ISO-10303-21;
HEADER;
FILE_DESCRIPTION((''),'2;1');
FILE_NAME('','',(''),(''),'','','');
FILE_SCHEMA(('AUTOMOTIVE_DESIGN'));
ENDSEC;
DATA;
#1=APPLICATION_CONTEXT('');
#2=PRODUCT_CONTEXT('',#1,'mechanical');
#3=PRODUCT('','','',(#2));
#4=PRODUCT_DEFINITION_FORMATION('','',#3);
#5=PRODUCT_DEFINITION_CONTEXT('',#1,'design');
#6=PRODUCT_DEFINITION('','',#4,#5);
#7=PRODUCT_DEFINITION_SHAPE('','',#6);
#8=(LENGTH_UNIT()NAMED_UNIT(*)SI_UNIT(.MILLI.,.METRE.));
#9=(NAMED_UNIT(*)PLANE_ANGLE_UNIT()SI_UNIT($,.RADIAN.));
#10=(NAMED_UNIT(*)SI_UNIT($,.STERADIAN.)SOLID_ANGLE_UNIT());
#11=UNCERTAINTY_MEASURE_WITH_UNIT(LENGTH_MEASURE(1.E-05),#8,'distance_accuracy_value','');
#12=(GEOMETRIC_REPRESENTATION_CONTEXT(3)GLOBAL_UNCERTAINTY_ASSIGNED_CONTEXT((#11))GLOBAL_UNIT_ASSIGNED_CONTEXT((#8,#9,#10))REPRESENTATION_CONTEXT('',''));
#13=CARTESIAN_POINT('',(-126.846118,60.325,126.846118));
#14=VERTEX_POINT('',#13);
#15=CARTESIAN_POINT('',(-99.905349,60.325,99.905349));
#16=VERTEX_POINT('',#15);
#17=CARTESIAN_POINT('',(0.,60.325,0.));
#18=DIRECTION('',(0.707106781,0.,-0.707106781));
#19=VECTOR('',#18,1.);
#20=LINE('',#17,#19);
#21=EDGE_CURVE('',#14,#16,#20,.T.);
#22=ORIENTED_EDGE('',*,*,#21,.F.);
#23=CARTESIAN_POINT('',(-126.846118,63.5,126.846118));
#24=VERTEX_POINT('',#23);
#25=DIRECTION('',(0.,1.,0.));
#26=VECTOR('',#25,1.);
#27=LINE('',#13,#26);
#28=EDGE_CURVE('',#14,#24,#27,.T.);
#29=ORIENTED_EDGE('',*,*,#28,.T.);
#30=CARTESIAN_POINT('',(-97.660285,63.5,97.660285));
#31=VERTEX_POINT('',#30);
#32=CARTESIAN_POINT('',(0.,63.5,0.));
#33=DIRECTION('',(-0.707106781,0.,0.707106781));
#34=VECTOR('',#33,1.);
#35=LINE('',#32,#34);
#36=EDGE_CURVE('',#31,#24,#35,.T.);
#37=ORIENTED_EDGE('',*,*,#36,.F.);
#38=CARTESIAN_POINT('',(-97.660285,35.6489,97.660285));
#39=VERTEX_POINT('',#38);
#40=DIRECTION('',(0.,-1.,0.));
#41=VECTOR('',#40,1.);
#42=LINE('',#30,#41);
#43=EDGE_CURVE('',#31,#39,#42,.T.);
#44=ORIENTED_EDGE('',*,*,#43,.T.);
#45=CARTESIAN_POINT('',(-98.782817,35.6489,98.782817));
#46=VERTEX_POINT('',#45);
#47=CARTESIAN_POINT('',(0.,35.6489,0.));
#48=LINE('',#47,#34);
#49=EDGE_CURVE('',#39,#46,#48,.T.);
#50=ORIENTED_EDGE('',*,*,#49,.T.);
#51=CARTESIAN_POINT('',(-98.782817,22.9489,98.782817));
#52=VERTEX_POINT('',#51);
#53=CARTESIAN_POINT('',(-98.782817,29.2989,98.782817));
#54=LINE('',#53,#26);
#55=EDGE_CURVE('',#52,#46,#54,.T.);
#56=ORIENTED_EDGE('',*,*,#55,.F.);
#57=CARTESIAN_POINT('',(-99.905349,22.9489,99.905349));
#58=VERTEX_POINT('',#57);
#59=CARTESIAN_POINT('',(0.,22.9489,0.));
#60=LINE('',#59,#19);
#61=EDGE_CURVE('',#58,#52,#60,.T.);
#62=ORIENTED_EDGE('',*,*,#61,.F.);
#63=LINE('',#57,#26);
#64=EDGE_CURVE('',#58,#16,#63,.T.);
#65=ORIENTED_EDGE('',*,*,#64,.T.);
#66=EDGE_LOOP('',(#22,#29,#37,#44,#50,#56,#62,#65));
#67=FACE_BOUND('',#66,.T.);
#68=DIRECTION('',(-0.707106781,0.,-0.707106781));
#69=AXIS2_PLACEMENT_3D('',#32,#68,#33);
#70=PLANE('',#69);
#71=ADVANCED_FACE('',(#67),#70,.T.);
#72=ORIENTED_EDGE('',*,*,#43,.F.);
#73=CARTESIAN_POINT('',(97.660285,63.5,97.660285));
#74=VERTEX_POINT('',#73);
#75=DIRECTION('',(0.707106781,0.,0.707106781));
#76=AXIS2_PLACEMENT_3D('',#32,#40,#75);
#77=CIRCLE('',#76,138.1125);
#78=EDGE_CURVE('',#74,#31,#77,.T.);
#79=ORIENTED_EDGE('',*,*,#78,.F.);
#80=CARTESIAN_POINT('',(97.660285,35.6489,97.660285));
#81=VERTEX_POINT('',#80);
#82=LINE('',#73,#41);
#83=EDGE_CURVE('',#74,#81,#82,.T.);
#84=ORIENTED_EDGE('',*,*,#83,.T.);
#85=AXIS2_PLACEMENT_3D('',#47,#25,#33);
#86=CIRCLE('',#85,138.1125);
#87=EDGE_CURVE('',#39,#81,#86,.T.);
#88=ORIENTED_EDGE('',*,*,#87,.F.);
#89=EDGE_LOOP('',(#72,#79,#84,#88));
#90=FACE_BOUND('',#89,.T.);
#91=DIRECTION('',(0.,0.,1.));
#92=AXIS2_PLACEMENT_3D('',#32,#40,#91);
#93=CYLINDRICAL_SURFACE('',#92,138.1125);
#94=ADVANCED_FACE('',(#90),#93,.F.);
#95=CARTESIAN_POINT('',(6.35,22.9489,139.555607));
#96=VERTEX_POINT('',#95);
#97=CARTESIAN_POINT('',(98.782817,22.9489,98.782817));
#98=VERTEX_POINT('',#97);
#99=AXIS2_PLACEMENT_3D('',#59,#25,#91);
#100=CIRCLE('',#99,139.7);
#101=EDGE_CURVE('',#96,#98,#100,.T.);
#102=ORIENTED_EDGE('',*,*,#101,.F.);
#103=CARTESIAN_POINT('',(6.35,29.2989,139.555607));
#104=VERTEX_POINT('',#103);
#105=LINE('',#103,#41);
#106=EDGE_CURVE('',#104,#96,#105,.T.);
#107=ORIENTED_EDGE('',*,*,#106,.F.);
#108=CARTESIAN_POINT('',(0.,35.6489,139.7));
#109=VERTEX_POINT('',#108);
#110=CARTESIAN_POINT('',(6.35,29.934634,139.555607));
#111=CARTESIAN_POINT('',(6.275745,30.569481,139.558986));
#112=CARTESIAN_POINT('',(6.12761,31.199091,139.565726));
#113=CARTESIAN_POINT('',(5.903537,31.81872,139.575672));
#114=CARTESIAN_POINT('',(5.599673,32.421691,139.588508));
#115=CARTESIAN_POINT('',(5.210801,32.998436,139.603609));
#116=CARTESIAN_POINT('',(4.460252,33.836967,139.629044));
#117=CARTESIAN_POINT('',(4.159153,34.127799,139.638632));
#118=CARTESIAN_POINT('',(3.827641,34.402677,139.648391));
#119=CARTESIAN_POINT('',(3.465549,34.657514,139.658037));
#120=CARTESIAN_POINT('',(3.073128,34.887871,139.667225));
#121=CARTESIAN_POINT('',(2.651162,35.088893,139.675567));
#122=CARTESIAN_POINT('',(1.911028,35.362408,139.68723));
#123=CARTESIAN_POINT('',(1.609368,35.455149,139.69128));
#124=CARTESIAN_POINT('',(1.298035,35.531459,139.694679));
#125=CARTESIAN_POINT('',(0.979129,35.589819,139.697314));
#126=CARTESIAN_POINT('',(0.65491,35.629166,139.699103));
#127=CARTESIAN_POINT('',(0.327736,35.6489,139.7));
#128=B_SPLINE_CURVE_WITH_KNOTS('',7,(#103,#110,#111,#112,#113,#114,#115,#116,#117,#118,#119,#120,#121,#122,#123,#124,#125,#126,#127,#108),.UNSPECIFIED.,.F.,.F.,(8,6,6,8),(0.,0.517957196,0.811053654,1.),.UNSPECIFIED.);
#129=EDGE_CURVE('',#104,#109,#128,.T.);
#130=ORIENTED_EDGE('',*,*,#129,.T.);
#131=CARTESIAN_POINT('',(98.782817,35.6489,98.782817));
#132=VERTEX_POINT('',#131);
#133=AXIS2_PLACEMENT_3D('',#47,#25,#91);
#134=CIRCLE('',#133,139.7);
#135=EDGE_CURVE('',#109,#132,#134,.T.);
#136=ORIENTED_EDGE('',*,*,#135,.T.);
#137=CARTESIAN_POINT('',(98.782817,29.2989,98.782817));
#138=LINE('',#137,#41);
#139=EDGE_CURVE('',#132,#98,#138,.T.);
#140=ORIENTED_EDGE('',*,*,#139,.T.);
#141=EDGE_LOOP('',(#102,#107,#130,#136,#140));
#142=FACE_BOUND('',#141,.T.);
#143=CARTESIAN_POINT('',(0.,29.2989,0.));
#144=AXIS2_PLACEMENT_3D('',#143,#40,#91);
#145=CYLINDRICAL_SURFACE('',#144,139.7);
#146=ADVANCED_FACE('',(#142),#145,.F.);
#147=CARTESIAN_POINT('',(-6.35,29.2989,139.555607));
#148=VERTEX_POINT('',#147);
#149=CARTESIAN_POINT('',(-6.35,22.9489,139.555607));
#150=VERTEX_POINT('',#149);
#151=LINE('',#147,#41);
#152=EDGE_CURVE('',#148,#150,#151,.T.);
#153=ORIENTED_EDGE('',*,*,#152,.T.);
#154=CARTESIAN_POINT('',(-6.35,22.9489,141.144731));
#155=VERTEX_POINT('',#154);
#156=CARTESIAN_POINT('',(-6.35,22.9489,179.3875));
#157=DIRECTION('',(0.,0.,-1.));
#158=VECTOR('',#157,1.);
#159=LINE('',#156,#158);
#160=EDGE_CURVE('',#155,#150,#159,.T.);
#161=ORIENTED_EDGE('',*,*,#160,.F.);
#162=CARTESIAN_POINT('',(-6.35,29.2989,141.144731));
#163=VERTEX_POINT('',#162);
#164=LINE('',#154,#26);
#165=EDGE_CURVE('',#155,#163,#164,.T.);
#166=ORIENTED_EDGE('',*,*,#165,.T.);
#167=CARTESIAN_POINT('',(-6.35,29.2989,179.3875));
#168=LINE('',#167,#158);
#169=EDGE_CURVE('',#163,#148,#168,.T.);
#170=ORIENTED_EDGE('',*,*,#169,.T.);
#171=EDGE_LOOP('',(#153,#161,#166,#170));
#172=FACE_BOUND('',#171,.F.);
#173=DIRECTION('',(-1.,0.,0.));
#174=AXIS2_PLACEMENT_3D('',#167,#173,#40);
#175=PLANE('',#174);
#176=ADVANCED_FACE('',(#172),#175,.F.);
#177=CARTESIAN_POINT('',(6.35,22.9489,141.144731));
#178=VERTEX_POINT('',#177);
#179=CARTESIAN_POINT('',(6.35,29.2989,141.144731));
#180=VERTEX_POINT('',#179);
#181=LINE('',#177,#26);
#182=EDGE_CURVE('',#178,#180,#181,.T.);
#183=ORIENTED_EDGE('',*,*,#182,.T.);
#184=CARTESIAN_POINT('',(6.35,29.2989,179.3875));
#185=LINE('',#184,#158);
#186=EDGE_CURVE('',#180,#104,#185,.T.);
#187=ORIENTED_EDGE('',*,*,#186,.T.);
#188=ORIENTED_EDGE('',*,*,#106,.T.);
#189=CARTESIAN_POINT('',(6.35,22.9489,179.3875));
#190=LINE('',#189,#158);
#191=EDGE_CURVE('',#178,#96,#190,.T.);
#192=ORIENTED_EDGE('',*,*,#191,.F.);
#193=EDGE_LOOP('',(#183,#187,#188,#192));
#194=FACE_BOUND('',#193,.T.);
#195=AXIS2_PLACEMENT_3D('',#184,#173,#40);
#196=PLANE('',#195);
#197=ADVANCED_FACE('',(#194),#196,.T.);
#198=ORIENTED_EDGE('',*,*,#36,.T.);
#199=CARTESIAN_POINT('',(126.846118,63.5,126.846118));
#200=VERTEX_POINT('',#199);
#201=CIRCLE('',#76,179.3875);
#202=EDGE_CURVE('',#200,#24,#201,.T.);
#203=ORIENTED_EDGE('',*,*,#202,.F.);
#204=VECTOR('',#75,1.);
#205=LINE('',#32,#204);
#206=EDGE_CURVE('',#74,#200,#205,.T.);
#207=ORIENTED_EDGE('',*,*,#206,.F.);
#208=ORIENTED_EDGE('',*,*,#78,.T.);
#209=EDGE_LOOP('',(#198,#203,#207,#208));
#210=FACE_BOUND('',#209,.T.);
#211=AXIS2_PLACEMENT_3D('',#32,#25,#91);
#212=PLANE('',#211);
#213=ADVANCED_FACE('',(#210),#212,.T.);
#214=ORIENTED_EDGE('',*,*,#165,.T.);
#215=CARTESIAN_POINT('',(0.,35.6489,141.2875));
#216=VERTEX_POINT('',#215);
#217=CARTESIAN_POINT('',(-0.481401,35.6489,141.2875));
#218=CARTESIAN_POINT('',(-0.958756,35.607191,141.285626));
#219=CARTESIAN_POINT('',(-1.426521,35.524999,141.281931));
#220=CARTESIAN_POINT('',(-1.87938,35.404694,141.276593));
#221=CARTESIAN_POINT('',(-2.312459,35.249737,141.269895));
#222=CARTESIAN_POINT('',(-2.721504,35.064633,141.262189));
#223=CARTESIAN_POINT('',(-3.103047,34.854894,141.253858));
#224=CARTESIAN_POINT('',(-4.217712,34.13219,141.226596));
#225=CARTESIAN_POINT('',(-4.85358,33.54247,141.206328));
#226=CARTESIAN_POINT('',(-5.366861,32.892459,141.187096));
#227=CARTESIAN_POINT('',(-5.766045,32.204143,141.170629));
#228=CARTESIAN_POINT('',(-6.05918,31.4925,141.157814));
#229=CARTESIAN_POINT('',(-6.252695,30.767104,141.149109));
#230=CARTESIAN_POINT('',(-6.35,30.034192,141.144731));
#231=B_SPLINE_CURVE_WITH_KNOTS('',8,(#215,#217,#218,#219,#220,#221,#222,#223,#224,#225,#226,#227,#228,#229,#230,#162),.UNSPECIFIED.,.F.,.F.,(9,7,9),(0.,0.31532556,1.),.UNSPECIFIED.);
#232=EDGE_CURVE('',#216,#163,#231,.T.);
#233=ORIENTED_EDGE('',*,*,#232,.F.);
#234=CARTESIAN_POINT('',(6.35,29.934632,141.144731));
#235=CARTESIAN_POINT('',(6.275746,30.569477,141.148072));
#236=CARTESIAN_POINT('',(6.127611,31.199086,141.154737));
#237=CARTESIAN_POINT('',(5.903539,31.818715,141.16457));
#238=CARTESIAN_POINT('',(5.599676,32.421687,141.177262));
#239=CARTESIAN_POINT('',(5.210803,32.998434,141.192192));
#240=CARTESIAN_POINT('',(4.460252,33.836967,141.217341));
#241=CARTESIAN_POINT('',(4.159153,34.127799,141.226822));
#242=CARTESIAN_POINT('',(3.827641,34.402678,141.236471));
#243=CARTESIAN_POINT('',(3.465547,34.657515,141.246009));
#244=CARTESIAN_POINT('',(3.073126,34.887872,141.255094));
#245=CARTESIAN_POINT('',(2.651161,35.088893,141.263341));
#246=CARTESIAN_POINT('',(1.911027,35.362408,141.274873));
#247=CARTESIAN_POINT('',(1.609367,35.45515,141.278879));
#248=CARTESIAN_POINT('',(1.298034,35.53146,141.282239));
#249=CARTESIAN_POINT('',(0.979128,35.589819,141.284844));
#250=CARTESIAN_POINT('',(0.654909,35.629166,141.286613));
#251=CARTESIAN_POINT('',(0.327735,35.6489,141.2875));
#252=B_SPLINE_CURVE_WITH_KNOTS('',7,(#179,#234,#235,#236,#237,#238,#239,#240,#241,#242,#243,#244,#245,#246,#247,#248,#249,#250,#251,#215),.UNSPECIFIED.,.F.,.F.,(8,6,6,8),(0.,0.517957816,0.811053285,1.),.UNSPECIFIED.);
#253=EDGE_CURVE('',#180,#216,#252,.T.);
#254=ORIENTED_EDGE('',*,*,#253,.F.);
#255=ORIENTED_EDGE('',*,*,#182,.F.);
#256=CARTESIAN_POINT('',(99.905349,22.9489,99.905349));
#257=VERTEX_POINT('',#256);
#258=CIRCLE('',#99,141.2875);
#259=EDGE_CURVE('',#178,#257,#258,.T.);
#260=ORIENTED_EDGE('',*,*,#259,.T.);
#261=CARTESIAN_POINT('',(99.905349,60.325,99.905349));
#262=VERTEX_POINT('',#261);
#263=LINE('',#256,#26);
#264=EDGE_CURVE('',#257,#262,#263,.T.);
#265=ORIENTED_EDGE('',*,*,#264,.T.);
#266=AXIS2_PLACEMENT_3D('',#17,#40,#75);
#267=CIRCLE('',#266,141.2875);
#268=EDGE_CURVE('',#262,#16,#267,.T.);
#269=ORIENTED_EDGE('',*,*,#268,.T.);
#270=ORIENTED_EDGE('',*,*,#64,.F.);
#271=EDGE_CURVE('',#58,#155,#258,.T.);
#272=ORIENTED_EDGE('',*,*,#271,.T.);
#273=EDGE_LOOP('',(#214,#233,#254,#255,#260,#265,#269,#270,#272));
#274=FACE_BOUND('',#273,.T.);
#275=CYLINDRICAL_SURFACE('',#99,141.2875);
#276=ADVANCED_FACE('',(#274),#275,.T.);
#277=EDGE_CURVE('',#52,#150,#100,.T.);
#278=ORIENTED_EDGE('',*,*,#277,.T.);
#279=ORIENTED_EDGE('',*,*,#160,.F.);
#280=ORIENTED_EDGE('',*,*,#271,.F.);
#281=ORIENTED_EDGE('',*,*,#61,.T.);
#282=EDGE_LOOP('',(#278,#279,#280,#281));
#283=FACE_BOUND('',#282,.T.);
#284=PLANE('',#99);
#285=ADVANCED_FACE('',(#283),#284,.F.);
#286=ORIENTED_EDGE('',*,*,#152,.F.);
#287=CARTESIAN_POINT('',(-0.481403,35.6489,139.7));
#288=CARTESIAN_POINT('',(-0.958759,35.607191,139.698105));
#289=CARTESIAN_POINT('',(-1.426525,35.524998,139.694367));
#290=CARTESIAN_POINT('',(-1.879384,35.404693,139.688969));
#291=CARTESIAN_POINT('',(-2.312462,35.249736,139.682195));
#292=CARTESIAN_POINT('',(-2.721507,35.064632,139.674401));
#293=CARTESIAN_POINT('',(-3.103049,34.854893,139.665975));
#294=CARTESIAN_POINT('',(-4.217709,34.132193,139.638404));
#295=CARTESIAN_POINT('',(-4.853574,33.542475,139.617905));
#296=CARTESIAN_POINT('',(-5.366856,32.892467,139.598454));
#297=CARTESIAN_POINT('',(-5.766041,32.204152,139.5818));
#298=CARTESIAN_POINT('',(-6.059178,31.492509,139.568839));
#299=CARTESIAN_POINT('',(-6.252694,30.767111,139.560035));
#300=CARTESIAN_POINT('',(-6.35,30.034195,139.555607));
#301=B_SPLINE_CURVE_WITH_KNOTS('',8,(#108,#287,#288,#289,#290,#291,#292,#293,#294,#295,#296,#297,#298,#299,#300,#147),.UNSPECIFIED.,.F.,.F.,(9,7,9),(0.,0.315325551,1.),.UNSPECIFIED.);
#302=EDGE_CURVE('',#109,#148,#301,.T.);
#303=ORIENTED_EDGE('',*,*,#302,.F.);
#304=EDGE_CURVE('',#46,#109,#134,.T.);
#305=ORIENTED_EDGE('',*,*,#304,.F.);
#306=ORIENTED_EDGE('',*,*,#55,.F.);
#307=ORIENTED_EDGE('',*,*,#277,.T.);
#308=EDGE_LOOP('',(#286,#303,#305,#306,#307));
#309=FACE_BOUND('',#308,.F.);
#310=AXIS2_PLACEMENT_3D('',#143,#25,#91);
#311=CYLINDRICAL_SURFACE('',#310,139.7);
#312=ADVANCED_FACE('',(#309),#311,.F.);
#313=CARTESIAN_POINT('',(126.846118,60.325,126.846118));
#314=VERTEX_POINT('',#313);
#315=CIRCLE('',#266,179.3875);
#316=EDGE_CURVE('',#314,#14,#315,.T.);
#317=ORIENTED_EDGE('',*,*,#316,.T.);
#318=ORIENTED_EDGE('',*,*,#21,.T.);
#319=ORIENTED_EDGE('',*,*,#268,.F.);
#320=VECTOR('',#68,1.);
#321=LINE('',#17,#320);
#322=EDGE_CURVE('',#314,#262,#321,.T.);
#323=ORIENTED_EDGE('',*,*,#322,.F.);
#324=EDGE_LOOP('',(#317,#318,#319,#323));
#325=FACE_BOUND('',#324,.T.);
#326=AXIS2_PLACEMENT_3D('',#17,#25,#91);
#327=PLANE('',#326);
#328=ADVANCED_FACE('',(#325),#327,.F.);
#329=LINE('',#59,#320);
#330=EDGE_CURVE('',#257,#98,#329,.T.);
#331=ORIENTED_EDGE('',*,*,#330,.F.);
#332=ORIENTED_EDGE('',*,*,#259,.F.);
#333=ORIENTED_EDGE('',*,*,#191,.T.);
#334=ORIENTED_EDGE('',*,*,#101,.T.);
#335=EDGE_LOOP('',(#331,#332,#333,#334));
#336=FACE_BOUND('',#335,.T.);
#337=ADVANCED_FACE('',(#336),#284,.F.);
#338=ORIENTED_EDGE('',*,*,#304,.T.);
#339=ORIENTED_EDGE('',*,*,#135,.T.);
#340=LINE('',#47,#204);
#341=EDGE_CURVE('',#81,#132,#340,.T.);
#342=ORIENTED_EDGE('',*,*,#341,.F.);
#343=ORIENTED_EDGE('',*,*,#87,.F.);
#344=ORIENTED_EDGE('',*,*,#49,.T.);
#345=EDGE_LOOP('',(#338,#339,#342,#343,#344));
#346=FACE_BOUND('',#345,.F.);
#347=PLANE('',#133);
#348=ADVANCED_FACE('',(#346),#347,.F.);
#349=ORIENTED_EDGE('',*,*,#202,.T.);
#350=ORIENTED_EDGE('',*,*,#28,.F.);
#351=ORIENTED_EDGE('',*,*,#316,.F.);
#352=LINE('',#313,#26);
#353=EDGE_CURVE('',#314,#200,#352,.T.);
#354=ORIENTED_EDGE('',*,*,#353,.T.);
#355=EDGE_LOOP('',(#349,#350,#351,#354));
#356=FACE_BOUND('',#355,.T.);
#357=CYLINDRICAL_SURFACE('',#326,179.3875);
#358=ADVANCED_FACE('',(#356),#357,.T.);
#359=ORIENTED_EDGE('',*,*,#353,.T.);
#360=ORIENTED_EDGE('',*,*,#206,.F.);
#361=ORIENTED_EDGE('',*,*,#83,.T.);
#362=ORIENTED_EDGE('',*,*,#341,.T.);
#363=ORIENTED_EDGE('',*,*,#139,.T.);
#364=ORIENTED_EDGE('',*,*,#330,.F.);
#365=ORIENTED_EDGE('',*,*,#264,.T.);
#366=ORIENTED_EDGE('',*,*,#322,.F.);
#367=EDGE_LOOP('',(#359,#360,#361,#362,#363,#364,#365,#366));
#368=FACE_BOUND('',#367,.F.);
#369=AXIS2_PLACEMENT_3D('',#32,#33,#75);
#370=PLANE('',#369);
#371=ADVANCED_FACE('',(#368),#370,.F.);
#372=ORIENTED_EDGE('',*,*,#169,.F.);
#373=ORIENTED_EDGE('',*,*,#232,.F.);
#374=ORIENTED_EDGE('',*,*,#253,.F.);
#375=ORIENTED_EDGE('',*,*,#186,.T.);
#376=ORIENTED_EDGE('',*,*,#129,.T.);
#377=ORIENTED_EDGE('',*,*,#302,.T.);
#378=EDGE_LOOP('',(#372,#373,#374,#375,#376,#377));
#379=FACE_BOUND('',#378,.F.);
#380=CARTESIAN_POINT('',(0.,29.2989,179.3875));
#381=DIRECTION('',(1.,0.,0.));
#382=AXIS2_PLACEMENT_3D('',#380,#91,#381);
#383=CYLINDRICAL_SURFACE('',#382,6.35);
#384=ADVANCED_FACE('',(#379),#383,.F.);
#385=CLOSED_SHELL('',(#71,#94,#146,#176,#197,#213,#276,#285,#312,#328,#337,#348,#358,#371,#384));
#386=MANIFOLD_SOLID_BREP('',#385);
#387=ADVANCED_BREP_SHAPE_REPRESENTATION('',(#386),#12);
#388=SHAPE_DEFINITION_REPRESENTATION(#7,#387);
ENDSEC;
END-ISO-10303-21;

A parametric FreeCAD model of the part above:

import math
import FreeCAD as App
import Part
import Sketcher
from FreeCAD import Vector
Q = App.Units.Quantity

doc = App.newDocument("Part")
body = doc.addObject("PartDesign::Body", "Body")

# Sketch on YZ plane
sketch1 = doc.addObject("Sketcher::SketchObject", "Sketch")
body.addObject(sketch1)
sketch1.AttachmentSupport = (doc.YZ_Plane, [""])
sketch1.MapMode = "FlatFace"
sketch1.addGeometry(Part.LineSegment(Vector(60.3, 141.3, 0), Vector(22.9, 141.3, 0)), False)
sketch1.addGeometry(Part.LineSegment(Vector(22.9, 141.3, 0), Vector(22.9, 139.7, 0)), False)
sketch1.addGeometry(Part.LineSegment(Vector(22.9, 139.7, 0), Vector(35.6, 139.7, 0)), False)
sketch1.addGeometry(Part.LineSegment(Vector(35.6, 139.7, 0), Vector(35.6, 138.1, 0)), False)
sketch1.addGeometry(Part.LineSegment(Vector(35.6, 138.1, 0), Vector(63.5, 138.1, 0)), False)
sketch1.addGeometry(Part.LineSegment(Vector(63.5, 138.1, 0), Vector(63.5, 179.4, 0)), False)
sketch1.addGeometry(Part.LineSegment(Vector(63.5, 179.4, 0), Vector(60.3, 179.4, 0)), False)
sketch1.addGeometry(Part.LineSegment(Vector(60.3, 179.4, 0), Vector(60.3, 141.3, 0)), False)
sketch1.addConstraint(Sketcher.Constraint("Coincident", 0, 2, 1, 1))
sketch1.addConstraint(Sketcher.Constraint("Coincident", 1, 2, 2, 1))
sketch1.addConstraint(Sketcher.Constraint("Coincident", 2, 2, 3, 1))
sketch1.addConstraint(Sketcher.Constraint("Coincident", 3, 2, 4, 1))
sketch1.addConstraint(Sketcher.Constraint("Coincident", 4, 2, 5, 1))
sketch1.addConstraint(Sketcher.Constraint("Coincident", 5, 2, 6, 1))
sketch1.addConstraint(Sketcher.Constraint("Coincident", 6, 2, 7, 1))
sketch1.addConstraint(Sketcher.Constraint("Coincident", 7, 2, 0, 1))
sketch1.addConstraint(Sketcher.Constraint("Horizontal", 0))
sketch1.addConstraint(Sketcher.Constraint("Vertical", 1))
sketch1.addConstraint(Sketcher.Constraint("Horizontal", 2))
sketch1.addConstraint(Sketcher.Constraint("Vertical", 3))
sketch1.addConstraint(Sketcher.Constraint("Horizontal", 4))
sketch1.addConstraint(Sketcher.Constraint("Vertical", 5))
sketch1.addConstraint(Sketcher.Constraint("Horizontal", 6))
sketch1.addConstraint(Sketcher.Constraint("Vertical", 7))
sketch1.addConstraint(Sketcher.Constraint("Equal", 1, 3))
sketch1.addConstraint(Sketcher.Constraint("DistanceY", 7, 2, 7, 1, Q("1.5 in")))
sketch1.addConstraint(Sketcher.Constraint("DistanceX", 6, 2, 6, 1, Q("0.125 in")))
sketch1.addConstraint(Sketcher.Constraint("DistanceY", 1, 2, 1, 1, Q("0.0625 in")))
sketch1.addConstraint(Sketcher.Constraint("DistanceX", 2, 1, 2, 2, Q("0.5 in")))
sketch1.addConstraint(Sketcher.Constraint("DistanceY", -1, 1, 3, 2, Q("5.4375 in")))
sketch1.addConstraint(Sketcher.Constraint("DistanceX", -1, 1, 4, 2, Q("2.5 in")))
sketch1.addConstraint(Sketcher.Constraint("DistanceX", 0, 2, 0, 1, Q("1.4715 in")))
revolution = doc.addObject("PartDesign::Revolution", "Revolution")
body.addObject(revolution)
revolution.Profile = sketch1
revolution.ReferenceAxis = (sketch1, ["H_Axis"])
revolution.Angle = 360

# Sketch on XY plane
sketch2 = doc.addObject("Sketcher::SketchObject", "Sketch001")
body.addObject(sketch2)
sketch2.AttachmentSupport = (doc.XY_Plane, [""])
sketch2.MapMode = "FlatFace"
sketch2.AttachmentOffset = App.Placement(Vector(0, 0, 7.0625 * 25.4), App.Rotation())
sketch2.addGeometry(Part.LineSegment(Vector(6, 23, 0), Vector(6, 29, 0)), False)
sketch2.addGeometry(Part.ArcOfCircle(Part.Circle(Vector(0, 29, 0), Vector(0, 0, 1), 6), math.radians(0), math.radians(180)), False)
sketch2.addGeometry(Part.LineSegment(Vector(-6, 29, 0), Vector(-6, 23, 0)), False)
sketch2.addGeometry(Part.LineSegment(Vector(-6, 23, 0), Vector(6, 23, 0)), False)
sketch2.addConstraint(Sketcher.Constraint("Tangent", 0, 2, 1, 1))
sketch2.addConstraint(Sketcher.Constraint("Tangent", 1, 2, 2, 1))
sketch2.addConstraint(Sketcher.Constraint("Coincident", 2, 2, 3, 1))
sketch2.addConstraint(Sketcher.Constraint("Coincident", 3, 2, 0, 1))
sketch2.addConstraint(Sketcher.Constraint("Vertical", 0))
sketch2.addConstraint(Sketcher.Constraint("Vertical", 2))
sketch2.addConstraint(Sketcher.Constraint("Horizontal", 3))
sketch2.addConstraint(Sketcher.Constraint("PointOnObject", 1, 3, -2))
sketch2.addConstraint(Sketcher.Constraint("Radius", 1, Q("0.25 in")))
sketch2.addConstraint(Sketcher.Constraint("DistanceY", 0, 1, 0, 2, Q("0.25 in")))
sketch2.addConstraint(Sketcher.Constraint("DistanceY", -1, 1, 1, 3, Q("1.1535 in")))
pocket1 = doc.addObject("PartDesign::Pocket", "Pocket")
body.addObject(pocket1)
pocket1.Profile = sketch2
pocket1.Type = "ThroughAll"

# Sketch on XZ plane
sketch3 = doc.addObject("Sketcher::SketchObject", "Sketch002")
body.addObject(sketch3)
sketch3.AttachmentSupport = (doc.XZ_Plane, [""])
sketch3.MapMode = "FlatFace"
sketch3.AttachmentOffset = App.Placement(Vector(0, 0, -2.5 * 25.4), App.Rotation())
sketch3.addGeometry(Part.LineSegment(Vector(-271, 271, 0), Vector(0, 0, 0)), False)
sketch3.addGeometry(Part.LineSegment(Vector(0, 0, 0), Vector(271, 271, 0)), False)
sketch3.addGeometry(Part.LineSegment(Vector(271, 271, 0), Vector(250, -238, 0)), False)
sketch3.addGeometry(Part.LineSegment(Vector(250, -238, 0), Vector(-271, -238, 0)), False)
sketch3.addGeometry(Part.LineSegment(Vector(-271, -238, 0), Vector(-271, 271, 0)), False)
sketch3.addConstraint(Sketcher.Constraint("Coincident", 0, 2, 1, 1))
sketch3.addConstraint(Sketcher.Constraint("Coincident", 1, 2, 2, 1))
sketch3.addConstraint(Sketcher.Constraint("Coincident", 2, 2, 3, 1))
sketch3.addConstraint(Sketcher.Constraint("Coincident", 3, 2, 4, 1))
sketch3.addConstraint(Sketcher.Constraint("Coincident", 4, 2, 0, 1))
sketch3.addConstraint(Sketcher.Constraint("Horizontal", 3))
sketch3.addConstraint(Sketcher.Constraint("Vertical", 4))
sketch3.addConstraint(Sketcher.Constraint("Coincident", 0, 2, -1, 1))
sketch3.addConstraint(Sketcher.Constraint("Symmetric", 1, 2, 4, 2, -2))
sketch3.addConstraint(Sketcher.Constraint("Perpendicular", 0, 1))
sketch3.addConstraint(Sketcher.Constraint("DistanceX", 3, 2, 3, 1, Q("20.54 in")))
sketch3.addConstraint(Sketcher.Constraint("DistanceY", 4, 1, 4, 2, 509.4573))
sketch3.addConstraint(Sketcher.Constraint("DistanceY", 2, 2, -1, 1, Q("9.3711 in")))
pocket2 = doc.addObject("PartDesign::Pocket", "Pocket001")
body.addObject(pocket2)
pocket2.Profile = sketch3
pocket2.Type = "ThroughAll"
pocket2.Reversed = True

doc.recompute()
